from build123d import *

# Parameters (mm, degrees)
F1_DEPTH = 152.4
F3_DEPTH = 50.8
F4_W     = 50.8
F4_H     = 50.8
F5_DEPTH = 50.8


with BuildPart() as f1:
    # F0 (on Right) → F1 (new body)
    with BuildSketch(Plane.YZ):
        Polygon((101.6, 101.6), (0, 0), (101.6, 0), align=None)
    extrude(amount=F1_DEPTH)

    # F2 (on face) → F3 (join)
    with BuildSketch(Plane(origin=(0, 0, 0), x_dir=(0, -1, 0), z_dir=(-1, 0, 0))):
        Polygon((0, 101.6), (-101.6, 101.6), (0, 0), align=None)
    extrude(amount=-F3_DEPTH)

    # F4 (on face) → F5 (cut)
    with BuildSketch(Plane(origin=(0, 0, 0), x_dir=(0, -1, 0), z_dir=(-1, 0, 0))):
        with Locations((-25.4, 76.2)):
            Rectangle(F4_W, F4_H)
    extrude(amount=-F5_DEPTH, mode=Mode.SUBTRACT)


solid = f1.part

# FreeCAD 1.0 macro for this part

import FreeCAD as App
import Part
import Sketcher
from FreeCAD import Vector
Q = App.Units.Quantity

doc = App.newDocument("Part")
body = doc.addObject("PartDesign::Body", "Body")

# Sketch on YZ plane
sketch1 = body.newObject("Sketcher::SketchObject", "Sketch")
sketch1.AttachmentSupport = (doc.getObject("YZ_Plane"), [""])
sketch1.MapMode = "FlatFace"
sketch1.addGeometry([
    Part.LineSegment(Vector(102, 102, 0), Vector(0, 0, 0)),
    Part.LineSegment(Vector(0, 0, 0), Vector(102, 0, 0)),
    Part.LineSegment(Vector(102, 0, 0), Vector(102, 102, 0)),
], False)
sketch1.addConstraint([
    Sketcher.Constraint("Coincident", 0, 2, 1, 1),
    Sketcher.Constraint("Coincident", 1, 2, 2, 1),
    Sketcher.Constraint("Coincident", 2, 2, 0, 1),
    Sketcher.Constraint("Horizontal", 1),
    Sketcher.Constraint("Vertical", 2),
    Sketcher.Constraint("Coincident", 0, 2, -1, 1),
    Sketcher.Constraint("Equal", 1, 2),
    Sketcher.Constraint("DistanceX", 1, 1, 1, 2, Q("4 in")),
])
pad1 = body.newObject("PartDesign::Pad", "Pad")
pad1.Profile = sketch1
pad1.Length = Q("6 in")

# Sketch on YZ plane
sketch2 = body.newObject("Sketcher::SketchObject", "Sketch001")
sketch2.AttachmentSupport = (doc.getObject("YZ_Plane"), [""])
sketch2.MapMode = "FlatFace"
sketch2.addGeometry([
    Part.LineSegment(Vector(0, 102, 0), Vector(102, 102, 0)),
    Part.LineSegment(Vector(102, 102, 0), Vector(0, 0, 0)),
    Part.LineSegment(Vector(0, 0, 0), Vector(0, 102, 0)),
], False)
sketch2.addConstraint([
    Sketcher.Constraint("Coincident", 0, 2, 1, 1),
    Sketcher.Constraint("Coincident", 1, 2, 2, 1),
    Sketcher.Constraint("Coincident", 2, 2, 0, 1),
    Sketcher.Constraint("Horizontal", 0),
    Sketcher.Constraint("Vertical", 2),
    Sketcher.Constraint("Coincident", 1, 2, -1, 1),
    Sketcher.Constraint("Equal", 0, 2),
    Sketcher.Constraint("DistanceX", 0, 1, 0, 2, Q("4 in")),
])
pad2 = body.newObject("PartDesign::Pad", "Pad001")
pad2.Profile = sketch2
pad2.Length = Q("2 in")

# Sketch on YZ plane
sketch3 = body.newObject("Sketcher::SketchObject", "Sketch002")
sketch3.AttachmentSupport = (doc.getObject("YZ_Plane"), [""])
sketch3.MapMode = "FlatFace"
sketch3.addGeometry([
    Part.LineSegment(Vector(51, 102, 0), Vector(51, 51, 0)),
    Part.LineSegment(Vector(51, 51, 0), Vector(0, 51, 0)),
    Part.LineSegment(Vector(0, 51, 0), Vector(0, 102, 0)),
    Part.LineSegment(Vector(0, 102, 0), Vector(51, 102, 0)),
], False)
sketch3.addConstraint([
    Sketcher.Constraint("Coincident", 0, 2, 1, 1),
    Sketcher.Constraint("Coincident", 1, 2, 2, 1),
    Sketcher.Constraint("Coincident", 2, 2, 3, 1),
    Sketcher.Constraint("Coincident", 3, 2, 0, 1),
    Sketcher.Constraint("Vertical", 0),
    Sketcher.Constraint("Horizontal", 1),
    Sketcher.Constraint("Vertical", 2),
    Sketcher.Constraint("Horizontal", 3),
    Sketcher.Constraint("PointOnObject", 1, 2, -2),
    Sketcher.Constraint("Equal", 3, 0),
    Sketcher.Constraint("DistanceX", 1, 2, 1, 1, Q("2 in")),
    Sketcher.Constraint("DistanceY", -1, 1, 0, 2, Q("2 in")),
])
pocket1 = body.newObject("PartDesign::Pocket", "Pocket")
pocket1.Profile = sketch3
pocket1.Length = Q("2 in")
pocket1.Reversed = True

doc.recompute()
